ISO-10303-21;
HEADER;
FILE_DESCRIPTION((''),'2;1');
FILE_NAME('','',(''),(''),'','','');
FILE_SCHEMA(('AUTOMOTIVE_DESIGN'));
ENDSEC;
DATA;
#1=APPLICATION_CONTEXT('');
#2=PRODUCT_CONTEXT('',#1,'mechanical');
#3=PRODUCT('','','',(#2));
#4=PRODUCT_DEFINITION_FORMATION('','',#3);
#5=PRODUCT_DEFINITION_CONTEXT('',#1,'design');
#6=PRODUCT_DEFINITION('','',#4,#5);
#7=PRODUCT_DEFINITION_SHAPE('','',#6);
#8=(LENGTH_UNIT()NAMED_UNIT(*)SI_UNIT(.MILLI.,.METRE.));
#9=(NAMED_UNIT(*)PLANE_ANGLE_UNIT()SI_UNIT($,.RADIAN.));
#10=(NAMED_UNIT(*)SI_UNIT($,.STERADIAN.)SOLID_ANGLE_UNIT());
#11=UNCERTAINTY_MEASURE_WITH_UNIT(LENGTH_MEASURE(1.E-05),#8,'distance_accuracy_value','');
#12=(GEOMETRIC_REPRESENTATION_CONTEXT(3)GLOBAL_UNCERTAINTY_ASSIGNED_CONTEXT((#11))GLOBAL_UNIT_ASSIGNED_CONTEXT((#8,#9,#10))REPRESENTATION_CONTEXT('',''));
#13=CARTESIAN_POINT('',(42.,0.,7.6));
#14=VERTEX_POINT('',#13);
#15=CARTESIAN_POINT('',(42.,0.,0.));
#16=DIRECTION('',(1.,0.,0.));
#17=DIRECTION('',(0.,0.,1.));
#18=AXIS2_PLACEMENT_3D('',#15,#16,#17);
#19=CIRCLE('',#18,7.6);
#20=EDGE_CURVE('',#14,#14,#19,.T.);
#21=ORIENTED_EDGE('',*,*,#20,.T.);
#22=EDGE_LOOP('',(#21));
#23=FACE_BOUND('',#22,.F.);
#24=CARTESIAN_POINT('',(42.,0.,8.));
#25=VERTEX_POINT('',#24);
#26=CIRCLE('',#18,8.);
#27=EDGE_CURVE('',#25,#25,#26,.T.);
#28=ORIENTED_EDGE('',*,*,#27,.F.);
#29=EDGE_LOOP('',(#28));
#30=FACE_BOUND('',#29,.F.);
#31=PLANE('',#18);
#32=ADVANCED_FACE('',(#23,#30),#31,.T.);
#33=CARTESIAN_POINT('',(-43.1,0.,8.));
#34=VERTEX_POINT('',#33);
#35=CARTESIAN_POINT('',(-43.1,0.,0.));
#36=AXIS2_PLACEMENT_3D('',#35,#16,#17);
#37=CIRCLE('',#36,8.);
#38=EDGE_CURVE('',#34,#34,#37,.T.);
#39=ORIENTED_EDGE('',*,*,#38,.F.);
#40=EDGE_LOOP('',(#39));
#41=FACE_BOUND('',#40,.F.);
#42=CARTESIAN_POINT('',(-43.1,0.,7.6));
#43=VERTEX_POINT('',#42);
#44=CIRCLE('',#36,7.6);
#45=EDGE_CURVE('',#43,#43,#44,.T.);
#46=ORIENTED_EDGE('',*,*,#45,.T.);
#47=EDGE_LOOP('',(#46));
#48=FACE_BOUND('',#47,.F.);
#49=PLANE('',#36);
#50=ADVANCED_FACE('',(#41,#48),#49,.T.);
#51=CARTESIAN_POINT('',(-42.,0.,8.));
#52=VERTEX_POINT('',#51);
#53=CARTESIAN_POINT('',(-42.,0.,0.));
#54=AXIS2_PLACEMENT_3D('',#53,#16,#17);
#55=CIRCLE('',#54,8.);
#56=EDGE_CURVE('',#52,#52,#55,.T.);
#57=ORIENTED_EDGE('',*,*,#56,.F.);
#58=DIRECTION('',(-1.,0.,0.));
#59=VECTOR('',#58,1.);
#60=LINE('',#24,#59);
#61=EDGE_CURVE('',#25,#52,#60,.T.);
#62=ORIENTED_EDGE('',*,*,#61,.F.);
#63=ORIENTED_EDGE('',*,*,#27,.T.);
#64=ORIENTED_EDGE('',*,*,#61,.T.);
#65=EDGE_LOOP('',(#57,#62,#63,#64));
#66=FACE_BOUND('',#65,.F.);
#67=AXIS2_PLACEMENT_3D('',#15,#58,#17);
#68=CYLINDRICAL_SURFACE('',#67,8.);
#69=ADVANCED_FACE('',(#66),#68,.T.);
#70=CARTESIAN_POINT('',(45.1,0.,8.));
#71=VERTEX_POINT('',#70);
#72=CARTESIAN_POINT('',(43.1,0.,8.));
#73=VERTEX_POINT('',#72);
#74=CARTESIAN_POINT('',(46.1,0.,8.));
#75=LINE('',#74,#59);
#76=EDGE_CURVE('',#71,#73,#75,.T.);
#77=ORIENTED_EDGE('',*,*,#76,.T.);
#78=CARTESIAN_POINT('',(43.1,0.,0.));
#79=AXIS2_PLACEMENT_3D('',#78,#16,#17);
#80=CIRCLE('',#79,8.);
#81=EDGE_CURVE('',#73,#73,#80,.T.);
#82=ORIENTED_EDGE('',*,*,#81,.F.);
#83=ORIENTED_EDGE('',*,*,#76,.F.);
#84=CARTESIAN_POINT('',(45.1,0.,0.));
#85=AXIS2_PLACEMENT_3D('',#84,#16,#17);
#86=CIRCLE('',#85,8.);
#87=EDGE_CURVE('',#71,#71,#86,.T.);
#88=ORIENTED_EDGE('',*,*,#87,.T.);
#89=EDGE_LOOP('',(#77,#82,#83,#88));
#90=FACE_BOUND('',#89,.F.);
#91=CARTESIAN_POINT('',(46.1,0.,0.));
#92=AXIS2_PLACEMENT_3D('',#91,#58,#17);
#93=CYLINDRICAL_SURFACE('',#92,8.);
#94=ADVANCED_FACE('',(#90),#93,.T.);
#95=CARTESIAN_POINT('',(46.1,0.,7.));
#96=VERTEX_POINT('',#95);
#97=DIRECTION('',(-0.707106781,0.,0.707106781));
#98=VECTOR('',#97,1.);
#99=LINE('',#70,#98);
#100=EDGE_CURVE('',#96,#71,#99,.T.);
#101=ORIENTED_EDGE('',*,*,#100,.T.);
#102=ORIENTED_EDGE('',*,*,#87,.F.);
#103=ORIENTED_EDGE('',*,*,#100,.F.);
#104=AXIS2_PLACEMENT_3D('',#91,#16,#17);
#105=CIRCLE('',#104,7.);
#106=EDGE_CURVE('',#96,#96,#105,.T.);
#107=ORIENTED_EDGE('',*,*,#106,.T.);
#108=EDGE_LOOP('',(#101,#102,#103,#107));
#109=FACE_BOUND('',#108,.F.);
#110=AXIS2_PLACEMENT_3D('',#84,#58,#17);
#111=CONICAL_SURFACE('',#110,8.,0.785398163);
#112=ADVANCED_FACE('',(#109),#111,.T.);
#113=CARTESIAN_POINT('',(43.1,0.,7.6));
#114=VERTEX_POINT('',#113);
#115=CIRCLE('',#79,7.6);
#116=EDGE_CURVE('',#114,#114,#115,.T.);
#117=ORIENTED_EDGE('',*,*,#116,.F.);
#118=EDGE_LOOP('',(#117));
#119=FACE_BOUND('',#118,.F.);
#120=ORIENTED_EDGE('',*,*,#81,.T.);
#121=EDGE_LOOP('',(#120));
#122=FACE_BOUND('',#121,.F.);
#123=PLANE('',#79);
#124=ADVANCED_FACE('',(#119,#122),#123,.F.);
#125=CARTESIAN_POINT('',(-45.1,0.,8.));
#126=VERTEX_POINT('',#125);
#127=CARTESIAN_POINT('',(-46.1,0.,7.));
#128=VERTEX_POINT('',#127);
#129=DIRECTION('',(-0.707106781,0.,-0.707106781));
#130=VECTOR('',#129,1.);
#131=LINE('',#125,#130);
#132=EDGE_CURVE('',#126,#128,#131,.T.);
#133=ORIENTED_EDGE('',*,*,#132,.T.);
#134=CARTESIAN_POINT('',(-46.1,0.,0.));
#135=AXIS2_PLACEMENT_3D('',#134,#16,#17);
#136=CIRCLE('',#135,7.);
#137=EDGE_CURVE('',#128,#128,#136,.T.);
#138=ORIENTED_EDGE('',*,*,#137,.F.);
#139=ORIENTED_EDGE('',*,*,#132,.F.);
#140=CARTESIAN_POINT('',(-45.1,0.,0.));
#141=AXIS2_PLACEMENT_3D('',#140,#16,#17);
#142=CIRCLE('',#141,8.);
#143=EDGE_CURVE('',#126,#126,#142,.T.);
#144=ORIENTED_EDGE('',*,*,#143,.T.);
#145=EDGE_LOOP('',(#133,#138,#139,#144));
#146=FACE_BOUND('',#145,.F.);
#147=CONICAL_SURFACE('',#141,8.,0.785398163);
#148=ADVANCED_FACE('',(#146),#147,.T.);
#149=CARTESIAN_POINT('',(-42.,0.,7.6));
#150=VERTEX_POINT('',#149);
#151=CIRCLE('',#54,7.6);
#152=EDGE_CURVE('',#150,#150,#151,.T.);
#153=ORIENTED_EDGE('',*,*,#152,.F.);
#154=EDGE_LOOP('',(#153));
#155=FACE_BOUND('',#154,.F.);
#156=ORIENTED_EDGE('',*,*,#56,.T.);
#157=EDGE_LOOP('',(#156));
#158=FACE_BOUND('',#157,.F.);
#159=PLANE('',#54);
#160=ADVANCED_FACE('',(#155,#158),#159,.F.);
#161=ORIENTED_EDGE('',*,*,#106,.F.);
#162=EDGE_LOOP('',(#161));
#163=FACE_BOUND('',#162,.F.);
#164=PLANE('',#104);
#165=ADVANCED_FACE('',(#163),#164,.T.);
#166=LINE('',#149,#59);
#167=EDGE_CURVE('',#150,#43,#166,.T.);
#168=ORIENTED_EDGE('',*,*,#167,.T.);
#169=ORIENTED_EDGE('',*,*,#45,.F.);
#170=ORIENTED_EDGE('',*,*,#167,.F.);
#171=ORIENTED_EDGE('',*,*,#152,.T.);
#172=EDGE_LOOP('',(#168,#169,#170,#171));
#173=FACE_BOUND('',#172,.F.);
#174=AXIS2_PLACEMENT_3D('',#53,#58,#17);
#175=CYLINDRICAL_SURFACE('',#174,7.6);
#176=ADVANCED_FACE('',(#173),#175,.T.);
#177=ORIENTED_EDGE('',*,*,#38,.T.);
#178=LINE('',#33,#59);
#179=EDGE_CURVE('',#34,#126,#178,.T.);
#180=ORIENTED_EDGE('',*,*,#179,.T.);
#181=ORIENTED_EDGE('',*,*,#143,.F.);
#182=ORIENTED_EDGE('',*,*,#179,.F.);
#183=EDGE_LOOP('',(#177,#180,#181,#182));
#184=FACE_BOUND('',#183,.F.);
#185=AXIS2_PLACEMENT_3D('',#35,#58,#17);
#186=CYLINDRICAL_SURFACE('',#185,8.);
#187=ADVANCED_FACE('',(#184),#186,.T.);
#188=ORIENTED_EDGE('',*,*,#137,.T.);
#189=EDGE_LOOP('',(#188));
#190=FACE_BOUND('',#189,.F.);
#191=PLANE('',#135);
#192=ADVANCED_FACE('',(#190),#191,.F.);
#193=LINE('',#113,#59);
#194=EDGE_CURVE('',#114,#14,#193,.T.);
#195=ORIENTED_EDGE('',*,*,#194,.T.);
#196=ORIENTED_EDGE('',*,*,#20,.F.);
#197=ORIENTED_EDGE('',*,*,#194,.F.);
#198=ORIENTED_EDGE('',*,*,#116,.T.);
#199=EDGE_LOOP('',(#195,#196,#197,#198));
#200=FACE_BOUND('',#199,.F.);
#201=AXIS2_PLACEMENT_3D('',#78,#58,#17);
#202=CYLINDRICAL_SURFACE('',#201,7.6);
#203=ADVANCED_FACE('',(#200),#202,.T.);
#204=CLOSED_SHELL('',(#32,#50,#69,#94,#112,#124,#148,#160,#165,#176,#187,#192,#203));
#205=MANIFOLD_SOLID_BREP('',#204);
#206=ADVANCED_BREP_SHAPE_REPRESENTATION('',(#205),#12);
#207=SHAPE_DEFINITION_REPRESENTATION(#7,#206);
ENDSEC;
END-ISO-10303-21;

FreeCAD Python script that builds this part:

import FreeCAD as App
import Part
import Sketcher
Q = App.Units.Quantity


def edges_at(feature, points):
    """Names of the edges that pass closest to the given points."""
    edges = feature.Shape.Edges
    near = lambda p: min(range(len(edges)), key=lambda i: edges[i].distToShape(Part.Vertex(*p))[0])
    return sorted({f"Edge{near(p) + 1}" for p in points})

doc = App.newDocument("Part")
body = doc.addObject("PartDesign::Body", "Body")

sketch1 = doc.addObject("Sketcher::SketchObject", "Sketch")
body.addObject(sketch1)
sketch1.AttachmentSupport = (doc.XZ_Plane, [""])
sketch1.MapMode = "FlatFace"
sketch1.addGeometry([
    Part.LineSegment(App.Vector(42, 8, 0), App.Vector(-42, 8, 0)),
    Part.LineSegment(App.Vector(-42, 8, 0), App.Vector(-42, 7.6, 0)),
    Part.LineSegment(App.Vector(-42, 7.6, 0), App.Vector(-43.1, 7.6, 0)),
    Part.LineSegment(App.Vector(-43.1, 7.6, 0), App.Vector(-43.1, 8, 0)),
    Part.LineSegment(App.Vector(-43.1, 8, 0), App.Vector(-46.1, 8, 0)),
    Part.LineSegment(App.Vector(-46.1, 8, 0), App.Vector(-46.1, 0, 0)),
    Part.LineSegment(App.Vector(-46.1, 0, 0), App.Vector(46.1, 0, 0)),
    Part.LineSegment(App.Vector(46.1, 0, 0), App.Vector(46.1, 8, 0)),
    Part.LineSegment(App.Vector(46.1, 8, 0), App.Vector(43.1, 8, 0)),
    Part.LineSegment(App.Vector(43.1, 8, 0), App.Vector(43.1, 7.6, 0)),
    Part.LineSegment(App.Vector(43.1, 7.6, 0), App.Vector(42, 7.6, 0)),
    Part.LineSegment(App.Vector(42, 7.6, 0), App.Vector(42, 8, 0)),
], False)
sketch1.addConstraint([
    Sketcher.Constraint("Coincident", 0, 2, 1, 1),
    Sketcher.Constraint("Coincident", 1, 2, 2, 1),
    Sketcher.Constraint("Coincident", 2, 2, 3, 1),
    Sketcher.Constraint("Coincident", 3, 2, 4, 1),
    Sketcher.Constraint("Coincident", 4, 2, 5, 1),
    Sketcher.Constraint("Coincident", 5, 2, 6, 1),
    Sketcher.Constraint("Coincident", 6, 2, 7, 1),
    Sketcher.Constraint("Coincident", 7, 2, 8, 1),
    Sketcher.Constraint("Coincident", 8, 2, 9, 1),
    Sketcher.Constraint("Coincident", 9, 2, 10, 1),
    Sketcher.Constraint("Coincident", 10, 2, 11, 1),
    Sketcher.Constraint("Coincident", 11, 2, 0, 1),
    Sketcher.Constraint("Horizontal", 0),
    Sketcher.Constraint("Vertical", 1),
    Sketcher.Constraint("Horizontal", 2),
    Sketcher.Constraint("Vertical", 3),
    Sketcher.Constraint("Horizontal", 4),
    Sketcher.Constraint("Vertical", 5),
    Sketcher.Constraint("Horizontal", 6),
    Sketcher.Constraint("Vertical", 7),
    Sketcher.Constraint("Horizontal", 8),
    Sketcher.Constraint("Vertical", 9),
    Sketcher.Constraint("Horizontal", 10),
    Sketcher.Constraint("Vertical", 11),
    Sketcher.Constraint("Symmetric", 5, 2, 6, 2, -1, 1),
    Sketcher.Constraint("Symmetric", 3, 2, 8, 2, -2),
    Sketcher.Constraint("Symmetric", 1, 2, 10, 2, -2),
    Sketcher.Constraint("Horizontal", 0, 2, 3, 2),
    Sketcher.Constraint("DistanceX", 0, 2, 0, 1, Q("84 mm")),
    Sketcher.Constraint("DistanceX", 4, 2, 4, 1, Q("3 mm")),
    Sketcher.Constraint("DistanceY", 5, 2, 5, 1, Q("8 mm")),
    Sketcher.Constraint("DistanceX", 2, 2, 2, 1, Q("1.1 mm")),
    Sketcher.Constraint("DistanceY", 1, 2, 1, 1, Q("0.4 mm")),
])
revolution = doc.addObject("PartDesign::Revolution", "Revolution")
body.addObject(revolution)
revolution.Profile = sketch1
revolution.ReferenceAxis = (sketch1, ["H_Axis"])
revolution.Angle = 360
doc.recompute()

chamfer = doc.addObject("PartDesign::Chamfer", "Chamfer")
body.addObject(chamfer)
chamfer.Base = (revolution, edges_at(revolution, [(-46.1, 0, -8), (46.1, 0, -8)]))
chamfer.Size = 1

doc.recompute()
